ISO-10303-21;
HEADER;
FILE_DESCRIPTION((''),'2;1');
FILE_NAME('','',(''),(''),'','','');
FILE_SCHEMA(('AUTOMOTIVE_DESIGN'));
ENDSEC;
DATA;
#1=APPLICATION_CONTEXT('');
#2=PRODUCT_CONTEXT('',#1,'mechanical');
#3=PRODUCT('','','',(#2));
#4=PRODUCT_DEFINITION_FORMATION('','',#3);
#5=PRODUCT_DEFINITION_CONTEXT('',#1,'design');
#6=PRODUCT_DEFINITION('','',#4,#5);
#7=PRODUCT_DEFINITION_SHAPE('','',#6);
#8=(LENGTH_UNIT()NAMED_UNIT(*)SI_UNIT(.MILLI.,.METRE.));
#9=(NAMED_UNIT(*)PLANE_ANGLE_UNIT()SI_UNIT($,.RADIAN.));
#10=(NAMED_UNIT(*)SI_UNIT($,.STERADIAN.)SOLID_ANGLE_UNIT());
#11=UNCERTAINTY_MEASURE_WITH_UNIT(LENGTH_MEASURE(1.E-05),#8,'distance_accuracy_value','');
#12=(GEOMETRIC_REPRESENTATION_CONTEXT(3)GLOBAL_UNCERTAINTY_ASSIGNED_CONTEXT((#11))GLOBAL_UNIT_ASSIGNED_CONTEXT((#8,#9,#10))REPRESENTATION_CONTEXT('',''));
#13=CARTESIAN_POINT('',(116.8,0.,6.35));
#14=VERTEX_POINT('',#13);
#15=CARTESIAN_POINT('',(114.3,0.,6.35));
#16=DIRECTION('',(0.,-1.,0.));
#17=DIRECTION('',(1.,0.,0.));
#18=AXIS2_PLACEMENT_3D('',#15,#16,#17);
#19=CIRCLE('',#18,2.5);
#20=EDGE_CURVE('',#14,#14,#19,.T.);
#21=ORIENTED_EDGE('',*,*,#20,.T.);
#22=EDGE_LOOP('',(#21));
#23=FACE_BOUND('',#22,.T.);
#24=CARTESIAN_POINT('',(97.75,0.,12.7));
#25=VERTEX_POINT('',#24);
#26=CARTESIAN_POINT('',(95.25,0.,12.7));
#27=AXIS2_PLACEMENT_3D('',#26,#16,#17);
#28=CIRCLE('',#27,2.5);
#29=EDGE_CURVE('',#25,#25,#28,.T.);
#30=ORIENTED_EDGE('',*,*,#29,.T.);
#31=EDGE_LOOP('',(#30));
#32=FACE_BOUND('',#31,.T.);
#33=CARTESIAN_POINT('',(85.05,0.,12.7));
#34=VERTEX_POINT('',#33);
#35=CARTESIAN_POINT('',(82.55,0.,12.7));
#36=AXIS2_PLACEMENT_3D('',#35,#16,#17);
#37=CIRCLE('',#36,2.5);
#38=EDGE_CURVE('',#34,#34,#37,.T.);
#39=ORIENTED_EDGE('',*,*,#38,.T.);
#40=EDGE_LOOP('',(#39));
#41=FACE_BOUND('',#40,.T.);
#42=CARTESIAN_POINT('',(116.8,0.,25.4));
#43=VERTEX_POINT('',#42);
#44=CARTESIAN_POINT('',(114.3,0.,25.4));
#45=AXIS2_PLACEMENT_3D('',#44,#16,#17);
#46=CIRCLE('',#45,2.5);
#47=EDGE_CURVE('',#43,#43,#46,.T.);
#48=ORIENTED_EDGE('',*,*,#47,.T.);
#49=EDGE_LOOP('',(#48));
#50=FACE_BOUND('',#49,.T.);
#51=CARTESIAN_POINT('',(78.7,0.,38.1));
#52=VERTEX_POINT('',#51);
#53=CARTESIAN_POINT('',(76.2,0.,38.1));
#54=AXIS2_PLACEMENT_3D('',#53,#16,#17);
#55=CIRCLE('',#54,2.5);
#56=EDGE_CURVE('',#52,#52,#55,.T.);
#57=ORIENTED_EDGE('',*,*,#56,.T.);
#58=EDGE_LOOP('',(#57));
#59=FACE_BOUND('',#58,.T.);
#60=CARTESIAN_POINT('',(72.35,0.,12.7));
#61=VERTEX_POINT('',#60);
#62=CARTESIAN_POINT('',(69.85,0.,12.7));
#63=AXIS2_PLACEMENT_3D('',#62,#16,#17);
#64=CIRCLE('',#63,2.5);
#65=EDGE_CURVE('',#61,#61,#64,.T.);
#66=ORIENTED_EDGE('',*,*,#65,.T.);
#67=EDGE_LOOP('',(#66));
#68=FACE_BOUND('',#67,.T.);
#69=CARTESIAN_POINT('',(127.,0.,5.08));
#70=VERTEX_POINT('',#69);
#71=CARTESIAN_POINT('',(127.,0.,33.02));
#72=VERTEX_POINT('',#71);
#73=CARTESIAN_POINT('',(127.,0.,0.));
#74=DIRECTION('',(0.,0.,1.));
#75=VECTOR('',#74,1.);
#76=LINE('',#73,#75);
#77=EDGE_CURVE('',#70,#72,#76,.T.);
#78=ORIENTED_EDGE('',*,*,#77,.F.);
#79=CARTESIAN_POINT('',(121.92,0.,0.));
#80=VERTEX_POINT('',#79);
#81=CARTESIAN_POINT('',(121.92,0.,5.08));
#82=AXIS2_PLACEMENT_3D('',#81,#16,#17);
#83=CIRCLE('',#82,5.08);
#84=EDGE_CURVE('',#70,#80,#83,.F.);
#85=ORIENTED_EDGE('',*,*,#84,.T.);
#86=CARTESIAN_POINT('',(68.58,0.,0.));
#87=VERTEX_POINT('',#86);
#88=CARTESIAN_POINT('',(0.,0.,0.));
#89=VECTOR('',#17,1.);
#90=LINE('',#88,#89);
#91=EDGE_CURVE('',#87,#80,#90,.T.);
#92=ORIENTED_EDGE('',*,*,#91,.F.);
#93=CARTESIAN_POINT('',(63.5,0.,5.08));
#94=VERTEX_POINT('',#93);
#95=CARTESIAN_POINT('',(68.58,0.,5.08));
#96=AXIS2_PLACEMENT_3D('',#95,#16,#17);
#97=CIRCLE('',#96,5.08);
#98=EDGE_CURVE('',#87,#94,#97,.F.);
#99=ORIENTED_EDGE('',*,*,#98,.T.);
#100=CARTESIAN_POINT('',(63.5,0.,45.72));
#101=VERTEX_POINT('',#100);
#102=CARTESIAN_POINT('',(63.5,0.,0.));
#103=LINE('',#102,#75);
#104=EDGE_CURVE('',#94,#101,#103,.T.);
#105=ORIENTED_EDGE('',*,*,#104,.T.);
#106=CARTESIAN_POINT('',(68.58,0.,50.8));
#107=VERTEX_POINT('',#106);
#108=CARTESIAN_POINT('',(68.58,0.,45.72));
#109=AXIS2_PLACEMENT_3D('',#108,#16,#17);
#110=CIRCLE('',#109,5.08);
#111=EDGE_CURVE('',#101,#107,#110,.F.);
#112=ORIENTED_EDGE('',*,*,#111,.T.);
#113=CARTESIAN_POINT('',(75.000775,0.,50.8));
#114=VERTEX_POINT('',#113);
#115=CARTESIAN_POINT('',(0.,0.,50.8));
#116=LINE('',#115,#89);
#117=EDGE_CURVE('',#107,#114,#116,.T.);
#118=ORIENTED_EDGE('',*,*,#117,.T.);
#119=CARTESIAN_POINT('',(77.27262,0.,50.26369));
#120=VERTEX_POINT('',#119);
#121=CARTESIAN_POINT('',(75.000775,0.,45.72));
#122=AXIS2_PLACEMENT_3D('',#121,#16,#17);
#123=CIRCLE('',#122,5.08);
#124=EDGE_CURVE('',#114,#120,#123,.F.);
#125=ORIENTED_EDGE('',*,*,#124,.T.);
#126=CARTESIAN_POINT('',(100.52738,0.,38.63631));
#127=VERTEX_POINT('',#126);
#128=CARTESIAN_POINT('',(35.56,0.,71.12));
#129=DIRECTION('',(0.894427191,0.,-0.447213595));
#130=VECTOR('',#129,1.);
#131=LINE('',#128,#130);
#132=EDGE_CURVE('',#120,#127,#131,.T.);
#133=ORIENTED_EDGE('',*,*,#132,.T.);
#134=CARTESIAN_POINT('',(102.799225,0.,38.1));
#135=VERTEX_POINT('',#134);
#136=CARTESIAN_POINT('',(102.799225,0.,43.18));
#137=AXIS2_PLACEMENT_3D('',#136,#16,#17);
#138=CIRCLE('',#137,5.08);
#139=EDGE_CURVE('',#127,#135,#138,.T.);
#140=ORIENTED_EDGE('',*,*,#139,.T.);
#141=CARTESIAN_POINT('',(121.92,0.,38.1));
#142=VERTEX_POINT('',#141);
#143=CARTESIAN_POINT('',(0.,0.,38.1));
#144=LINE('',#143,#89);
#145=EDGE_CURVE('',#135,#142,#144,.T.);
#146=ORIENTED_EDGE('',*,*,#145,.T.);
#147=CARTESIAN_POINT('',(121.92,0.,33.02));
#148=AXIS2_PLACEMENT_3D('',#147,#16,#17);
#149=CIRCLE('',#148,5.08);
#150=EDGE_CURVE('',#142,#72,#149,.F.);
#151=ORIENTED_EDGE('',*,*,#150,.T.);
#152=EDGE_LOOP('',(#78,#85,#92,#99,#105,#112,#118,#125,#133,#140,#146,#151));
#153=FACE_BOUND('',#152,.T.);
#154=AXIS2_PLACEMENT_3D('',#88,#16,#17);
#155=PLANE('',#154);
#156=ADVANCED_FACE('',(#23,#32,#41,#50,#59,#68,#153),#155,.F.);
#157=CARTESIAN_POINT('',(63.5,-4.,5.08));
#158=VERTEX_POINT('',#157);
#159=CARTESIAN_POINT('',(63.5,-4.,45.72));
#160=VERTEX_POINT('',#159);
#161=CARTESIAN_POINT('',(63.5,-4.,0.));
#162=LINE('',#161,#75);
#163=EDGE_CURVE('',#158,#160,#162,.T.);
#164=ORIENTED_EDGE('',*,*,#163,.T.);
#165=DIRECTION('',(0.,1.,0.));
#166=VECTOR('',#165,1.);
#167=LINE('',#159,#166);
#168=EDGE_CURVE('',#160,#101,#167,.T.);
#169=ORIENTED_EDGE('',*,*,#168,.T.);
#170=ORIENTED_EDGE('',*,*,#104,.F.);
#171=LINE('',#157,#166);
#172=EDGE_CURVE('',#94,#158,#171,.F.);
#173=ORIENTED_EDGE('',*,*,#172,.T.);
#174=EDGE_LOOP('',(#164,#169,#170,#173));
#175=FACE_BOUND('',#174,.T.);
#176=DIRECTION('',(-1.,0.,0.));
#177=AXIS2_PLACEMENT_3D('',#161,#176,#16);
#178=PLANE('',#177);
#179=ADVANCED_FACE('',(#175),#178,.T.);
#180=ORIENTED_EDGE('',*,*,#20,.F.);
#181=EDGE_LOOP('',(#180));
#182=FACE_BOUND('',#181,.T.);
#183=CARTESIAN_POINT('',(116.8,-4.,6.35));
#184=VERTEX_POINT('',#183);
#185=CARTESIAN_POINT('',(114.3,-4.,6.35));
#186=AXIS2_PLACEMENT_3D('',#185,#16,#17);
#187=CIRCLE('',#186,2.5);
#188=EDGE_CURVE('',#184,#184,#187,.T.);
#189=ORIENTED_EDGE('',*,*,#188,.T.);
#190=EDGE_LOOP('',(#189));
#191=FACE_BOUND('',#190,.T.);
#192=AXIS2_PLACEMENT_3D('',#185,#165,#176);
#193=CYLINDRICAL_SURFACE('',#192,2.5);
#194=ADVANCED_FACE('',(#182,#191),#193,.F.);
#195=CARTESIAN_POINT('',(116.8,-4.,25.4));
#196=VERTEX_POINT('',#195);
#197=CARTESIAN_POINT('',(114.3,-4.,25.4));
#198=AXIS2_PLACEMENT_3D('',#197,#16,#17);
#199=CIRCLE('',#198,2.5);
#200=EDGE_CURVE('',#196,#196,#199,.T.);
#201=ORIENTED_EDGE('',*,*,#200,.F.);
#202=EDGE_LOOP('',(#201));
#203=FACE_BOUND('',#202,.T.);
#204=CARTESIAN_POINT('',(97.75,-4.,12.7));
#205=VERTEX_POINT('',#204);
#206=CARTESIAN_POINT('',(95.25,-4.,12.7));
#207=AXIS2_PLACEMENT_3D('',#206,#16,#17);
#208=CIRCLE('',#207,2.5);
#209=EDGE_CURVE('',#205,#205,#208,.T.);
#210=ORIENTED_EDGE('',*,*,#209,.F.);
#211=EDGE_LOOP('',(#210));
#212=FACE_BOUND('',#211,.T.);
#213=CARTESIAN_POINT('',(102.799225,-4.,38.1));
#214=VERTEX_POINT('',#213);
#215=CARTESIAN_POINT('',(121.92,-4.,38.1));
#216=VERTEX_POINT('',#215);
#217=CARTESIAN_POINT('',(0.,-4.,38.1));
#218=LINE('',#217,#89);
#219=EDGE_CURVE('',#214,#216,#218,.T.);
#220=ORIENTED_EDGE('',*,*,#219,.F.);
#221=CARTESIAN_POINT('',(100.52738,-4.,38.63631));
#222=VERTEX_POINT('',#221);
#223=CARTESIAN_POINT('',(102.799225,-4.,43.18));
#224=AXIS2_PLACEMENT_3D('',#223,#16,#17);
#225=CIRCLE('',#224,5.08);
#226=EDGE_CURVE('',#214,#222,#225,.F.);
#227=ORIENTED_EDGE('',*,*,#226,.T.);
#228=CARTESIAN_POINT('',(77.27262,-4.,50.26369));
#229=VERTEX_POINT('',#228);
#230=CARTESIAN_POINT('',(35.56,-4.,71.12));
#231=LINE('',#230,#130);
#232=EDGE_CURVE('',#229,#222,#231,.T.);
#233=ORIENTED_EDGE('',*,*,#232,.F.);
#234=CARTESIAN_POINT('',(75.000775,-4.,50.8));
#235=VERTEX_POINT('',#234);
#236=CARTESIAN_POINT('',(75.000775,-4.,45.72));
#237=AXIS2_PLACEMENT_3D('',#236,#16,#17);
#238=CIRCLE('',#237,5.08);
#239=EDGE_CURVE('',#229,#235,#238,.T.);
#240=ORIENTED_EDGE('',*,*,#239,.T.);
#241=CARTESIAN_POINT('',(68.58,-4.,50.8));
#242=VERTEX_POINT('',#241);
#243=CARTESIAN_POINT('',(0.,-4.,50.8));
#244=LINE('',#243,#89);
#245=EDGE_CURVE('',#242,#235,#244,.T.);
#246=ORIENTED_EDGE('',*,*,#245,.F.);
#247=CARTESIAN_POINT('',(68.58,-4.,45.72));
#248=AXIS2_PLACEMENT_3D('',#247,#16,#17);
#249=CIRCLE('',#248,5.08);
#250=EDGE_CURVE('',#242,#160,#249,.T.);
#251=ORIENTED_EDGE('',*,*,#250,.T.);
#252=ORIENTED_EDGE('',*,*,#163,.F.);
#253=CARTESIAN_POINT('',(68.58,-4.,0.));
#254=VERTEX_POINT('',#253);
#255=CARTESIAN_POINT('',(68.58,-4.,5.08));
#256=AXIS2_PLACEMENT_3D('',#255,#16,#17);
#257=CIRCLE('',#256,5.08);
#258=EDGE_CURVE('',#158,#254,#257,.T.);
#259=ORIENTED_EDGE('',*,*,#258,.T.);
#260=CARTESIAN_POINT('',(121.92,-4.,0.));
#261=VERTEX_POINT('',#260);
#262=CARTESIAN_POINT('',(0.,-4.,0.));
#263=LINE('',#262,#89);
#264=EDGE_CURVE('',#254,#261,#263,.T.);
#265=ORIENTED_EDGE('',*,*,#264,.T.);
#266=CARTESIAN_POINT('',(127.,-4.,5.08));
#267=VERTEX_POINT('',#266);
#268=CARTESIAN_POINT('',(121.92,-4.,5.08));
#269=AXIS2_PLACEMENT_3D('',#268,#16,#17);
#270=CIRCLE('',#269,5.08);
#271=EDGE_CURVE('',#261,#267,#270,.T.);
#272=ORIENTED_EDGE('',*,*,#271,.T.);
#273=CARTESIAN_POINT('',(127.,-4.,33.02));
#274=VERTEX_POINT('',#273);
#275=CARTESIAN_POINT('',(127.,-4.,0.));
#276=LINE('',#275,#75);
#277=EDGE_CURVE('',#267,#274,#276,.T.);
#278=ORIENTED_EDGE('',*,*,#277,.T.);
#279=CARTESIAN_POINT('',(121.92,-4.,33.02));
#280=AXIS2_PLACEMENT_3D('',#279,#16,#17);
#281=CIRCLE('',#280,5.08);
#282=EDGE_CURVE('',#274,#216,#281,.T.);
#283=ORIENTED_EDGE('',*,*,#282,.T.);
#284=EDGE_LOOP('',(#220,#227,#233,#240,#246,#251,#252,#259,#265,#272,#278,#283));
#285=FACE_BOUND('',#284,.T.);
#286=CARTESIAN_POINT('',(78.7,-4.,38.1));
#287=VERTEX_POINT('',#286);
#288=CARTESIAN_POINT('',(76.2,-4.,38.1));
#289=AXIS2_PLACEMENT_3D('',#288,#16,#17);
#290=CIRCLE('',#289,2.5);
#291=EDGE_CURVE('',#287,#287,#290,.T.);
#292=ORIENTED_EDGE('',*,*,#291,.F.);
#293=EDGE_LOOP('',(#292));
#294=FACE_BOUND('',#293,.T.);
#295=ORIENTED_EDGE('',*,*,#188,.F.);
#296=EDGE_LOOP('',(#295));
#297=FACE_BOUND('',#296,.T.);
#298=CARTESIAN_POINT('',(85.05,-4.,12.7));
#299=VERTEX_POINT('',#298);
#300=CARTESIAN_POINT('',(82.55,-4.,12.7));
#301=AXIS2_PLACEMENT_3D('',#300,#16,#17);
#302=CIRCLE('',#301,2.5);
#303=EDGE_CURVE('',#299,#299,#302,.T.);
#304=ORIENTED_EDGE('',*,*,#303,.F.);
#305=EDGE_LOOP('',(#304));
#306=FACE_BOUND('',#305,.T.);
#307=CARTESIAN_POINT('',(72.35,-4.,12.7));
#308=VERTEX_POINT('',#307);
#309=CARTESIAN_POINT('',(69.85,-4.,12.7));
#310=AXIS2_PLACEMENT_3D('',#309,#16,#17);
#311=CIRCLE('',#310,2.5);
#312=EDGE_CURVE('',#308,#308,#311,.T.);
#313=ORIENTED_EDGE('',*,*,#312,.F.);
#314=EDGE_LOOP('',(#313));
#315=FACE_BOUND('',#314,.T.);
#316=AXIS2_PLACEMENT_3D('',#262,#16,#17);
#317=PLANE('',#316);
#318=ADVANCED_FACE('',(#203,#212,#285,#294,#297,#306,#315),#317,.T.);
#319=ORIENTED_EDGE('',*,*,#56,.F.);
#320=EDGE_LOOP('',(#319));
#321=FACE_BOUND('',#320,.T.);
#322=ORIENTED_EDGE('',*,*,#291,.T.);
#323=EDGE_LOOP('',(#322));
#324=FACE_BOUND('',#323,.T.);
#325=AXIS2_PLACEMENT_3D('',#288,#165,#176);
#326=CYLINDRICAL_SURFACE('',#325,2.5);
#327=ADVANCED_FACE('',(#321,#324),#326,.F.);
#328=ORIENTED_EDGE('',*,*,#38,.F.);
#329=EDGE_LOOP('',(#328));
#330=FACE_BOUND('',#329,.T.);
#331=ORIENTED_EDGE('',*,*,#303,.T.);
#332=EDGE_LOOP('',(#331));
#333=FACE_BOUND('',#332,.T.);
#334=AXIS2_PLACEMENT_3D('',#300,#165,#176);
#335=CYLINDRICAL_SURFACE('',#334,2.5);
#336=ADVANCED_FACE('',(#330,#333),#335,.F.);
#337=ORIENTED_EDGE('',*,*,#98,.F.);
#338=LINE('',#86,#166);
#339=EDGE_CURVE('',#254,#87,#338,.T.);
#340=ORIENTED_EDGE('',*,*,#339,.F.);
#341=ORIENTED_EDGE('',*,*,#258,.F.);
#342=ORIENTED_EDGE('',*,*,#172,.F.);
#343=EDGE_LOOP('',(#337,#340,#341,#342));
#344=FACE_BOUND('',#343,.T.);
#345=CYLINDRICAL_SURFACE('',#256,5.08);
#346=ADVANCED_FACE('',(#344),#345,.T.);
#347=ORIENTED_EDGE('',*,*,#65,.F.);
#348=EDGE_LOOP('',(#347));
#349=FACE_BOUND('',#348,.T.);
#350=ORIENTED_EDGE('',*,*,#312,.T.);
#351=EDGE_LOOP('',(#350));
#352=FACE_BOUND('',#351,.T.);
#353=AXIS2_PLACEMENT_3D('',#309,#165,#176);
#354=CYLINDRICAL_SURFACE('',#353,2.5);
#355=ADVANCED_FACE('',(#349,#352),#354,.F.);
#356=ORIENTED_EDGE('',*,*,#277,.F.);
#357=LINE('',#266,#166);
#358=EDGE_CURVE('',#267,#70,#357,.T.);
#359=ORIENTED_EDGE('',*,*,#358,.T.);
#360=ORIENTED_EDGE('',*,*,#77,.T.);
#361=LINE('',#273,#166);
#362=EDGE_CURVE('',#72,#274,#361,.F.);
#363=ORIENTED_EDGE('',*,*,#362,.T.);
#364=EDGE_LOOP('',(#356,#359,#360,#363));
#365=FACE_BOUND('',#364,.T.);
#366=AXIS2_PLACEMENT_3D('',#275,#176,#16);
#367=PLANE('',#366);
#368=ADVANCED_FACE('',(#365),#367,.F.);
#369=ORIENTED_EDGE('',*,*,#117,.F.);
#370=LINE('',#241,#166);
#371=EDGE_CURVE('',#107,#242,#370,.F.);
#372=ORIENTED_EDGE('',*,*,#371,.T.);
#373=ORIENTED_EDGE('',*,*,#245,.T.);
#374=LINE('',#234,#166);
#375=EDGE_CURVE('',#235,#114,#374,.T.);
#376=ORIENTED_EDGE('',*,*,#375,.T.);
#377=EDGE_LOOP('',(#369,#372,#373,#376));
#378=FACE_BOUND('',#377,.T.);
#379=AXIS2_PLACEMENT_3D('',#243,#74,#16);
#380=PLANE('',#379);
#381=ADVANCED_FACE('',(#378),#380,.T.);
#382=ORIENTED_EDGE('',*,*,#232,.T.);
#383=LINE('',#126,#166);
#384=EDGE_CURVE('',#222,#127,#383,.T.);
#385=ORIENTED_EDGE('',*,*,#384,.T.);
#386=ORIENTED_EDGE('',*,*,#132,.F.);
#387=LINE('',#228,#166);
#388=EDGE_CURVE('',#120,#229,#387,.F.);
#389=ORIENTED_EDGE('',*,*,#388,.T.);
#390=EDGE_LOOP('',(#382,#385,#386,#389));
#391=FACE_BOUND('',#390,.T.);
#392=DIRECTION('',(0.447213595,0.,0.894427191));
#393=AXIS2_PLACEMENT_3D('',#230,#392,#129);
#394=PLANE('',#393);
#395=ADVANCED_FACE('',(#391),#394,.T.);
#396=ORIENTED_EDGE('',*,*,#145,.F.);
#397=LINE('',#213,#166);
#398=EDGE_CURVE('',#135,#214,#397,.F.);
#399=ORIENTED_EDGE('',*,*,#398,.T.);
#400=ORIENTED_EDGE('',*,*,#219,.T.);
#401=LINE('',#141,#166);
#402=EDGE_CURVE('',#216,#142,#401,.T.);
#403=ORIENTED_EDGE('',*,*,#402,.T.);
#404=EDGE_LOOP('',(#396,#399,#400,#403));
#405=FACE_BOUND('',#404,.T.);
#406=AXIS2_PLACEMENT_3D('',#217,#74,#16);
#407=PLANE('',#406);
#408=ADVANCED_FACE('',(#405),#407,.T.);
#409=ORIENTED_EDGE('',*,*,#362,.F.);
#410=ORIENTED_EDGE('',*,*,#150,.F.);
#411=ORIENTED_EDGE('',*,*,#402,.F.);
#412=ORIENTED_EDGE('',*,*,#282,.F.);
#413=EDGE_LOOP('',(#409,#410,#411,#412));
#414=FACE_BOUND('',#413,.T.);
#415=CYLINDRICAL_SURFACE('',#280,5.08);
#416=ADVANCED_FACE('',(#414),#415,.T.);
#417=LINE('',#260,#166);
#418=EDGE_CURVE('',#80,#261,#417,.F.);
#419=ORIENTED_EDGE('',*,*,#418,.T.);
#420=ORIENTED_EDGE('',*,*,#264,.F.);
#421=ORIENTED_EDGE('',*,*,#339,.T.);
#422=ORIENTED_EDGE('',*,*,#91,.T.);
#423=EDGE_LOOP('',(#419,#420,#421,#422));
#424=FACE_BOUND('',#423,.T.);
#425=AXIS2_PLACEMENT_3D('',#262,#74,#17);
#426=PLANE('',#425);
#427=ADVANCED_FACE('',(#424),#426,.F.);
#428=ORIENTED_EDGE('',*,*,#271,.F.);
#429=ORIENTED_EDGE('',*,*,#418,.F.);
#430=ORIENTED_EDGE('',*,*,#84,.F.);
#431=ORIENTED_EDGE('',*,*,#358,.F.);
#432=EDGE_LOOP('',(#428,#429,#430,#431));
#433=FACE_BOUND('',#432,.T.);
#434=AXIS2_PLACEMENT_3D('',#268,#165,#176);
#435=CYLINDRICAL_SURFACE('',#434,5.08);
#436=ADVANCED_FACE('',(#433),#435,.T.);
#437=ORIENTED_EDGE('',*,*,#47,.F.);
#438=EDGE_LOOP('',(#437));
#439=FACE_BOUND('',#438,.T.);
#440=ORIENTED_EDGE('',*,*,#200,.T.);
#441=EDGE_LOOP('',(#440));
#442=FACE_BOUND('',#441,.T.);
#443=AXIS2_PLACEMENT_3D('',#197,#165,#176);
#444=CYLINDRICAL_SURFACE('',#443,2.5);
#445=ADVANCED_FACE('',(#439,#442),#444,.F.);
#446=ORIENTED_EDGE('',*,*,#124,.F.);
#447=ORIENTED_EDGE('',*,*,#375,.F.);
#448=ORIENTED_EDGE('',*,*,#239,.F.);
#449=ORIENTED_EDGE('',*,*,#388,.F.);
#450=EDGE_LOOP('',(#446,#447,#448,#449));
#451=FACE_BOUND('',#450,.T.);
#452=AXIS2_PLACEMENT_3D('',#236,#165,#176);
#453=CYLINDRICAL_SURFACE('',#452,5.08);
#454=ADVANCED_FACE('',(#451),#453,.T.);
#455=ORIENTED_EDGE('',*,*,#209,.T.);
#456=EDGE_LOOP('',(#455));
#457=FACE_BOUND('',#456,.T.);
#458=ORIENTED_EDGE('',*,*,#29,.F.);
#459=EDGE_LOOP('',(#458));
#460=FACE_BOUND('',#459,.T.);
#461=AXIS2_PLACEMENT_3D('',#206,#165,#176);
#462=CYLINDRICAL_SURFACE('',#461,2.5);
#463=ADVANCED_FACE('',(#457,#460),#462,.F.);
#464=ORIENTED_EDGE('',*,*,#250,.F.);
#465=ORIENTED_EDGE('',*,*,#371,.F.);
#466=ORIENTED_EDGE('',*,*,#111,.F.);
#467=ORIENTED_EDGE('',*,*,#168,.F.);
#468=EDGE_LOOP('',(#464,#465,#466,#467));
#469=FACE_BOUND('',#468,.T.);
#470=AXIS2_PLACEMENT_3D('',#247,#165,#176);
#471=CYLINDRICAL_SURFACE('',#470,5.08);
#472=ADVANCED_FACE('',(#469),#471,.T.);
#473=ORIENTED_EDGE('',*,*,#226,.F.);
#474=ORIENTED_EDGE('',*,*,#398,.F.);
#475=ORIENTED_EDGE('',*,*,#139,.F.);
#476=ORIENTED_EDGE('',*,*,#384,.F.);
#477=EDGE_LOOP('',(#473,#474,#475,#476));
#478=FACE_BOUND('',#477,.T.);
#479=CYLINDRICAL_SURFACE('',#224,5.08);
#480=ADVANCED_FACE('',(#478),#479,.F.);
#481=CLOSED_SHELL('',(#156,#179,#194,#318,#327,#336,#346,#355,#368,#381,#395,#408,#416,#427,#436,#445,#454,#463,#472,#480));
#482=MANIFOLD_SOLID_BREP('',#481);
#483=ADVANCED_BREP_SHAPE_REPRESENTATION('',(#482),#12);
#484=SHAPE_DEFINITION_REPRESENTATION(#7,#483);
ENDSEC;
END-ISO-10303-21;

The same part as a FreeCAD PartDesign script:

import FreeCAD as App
import Part
import Sketcher

V = App.Vector
Q = App.Units.Quantity


def edges_at(feature, points):
    """Names of the edges that pass closest to the given points."""
    edges = feature.Shape.Edges
    near = lambda p: min(range(len(edges)), key=lambda i: edges[i].distToShape(Part.Vertex(*p))[0])
    return sorted({f"Edge{near(p) + 1}" for p in points})


def add_polygon(sketch, points):
    """Adds a closed chain of lines whose ends are joined by coincident constraints."""
    first, n = sketch.GeometryCount, len(points)
    for a, b in zip(points, points[1:] + points[:1]):
        sketch.addGeometry(Part.LineSegment(App.Vector(*a, 0), App.Vector(*b, 0)), False)
    for i in range(n):
        sketch.addConstraint(Sketcher.Constraint("Coincident", first + i, 2, first + (i + 1) % n, 1))

doc = App.newDocument("Part")
body = doc.addObject("PartDesign::Body", "Body")

# Sketch on XZ plane
sketch1 = doc.addObject("Sketcher::SketchObject", "Sketch")
body.addObject(sketch1)
sketch1.AttachmentSupport = (doc.XZ_Plane, [""])
sketch1.MapMode = "FlatFace"
add_polygon(sketch1, [(127, 38.1), (101.6, 38.1), (76.2, 50.8), (63.5, 50.8), (63.5, 0), (127, 0)])  # lines 0-5
sketch1.addGeometry(Part.Circle(V(69.8, 12.7, 0), V(0, 0, 1), 2.5), False)  # 6
sketch1.addGeometry(Part.Circle(V(82.5, 12.7, 0), V(0, 0, 1), 2.5), False)  # 7
sketch1.addGeometry(Part.Circle(V(95.2, 12.7, 0), V(0, 0, 1), 2.5), False)  # 8
sketch1.addGeometry(Part.Circle(V(114.3, 6.3, 0), V(0, 0, 1), 2.5), False)  # 9
sketch1.addGeometry(Part.Circle(V(76.2, 38.1, 0), V(0, 0, 1), 2.5), False)  # 10
sketch1.addGeometry(Part.Circle(V(114.3, 25.4, 0), V(0, 0, 1), 2.5), False)  # 11
sketch1.addConstraint([
    Sketcher.Constraint("Horizontal", 0),
    Sketcher.Constraint("Horizontal", 2),
    Sketcher.Constraint("Vertical", 3),
    Sketcher.Constraint("Horizontal", 4),
    Sketcher.Constraint("Vertical", 5),
    Sketcher.Constraint("Equal", 6, 7),
    Sketcher.Constraint("Equal", 7, 8),
    Sketcher.Constraint("Equal", 8, 9),
    Sketcher.Constraint("Equal", 9, 10),
    Sketcher.Constraint("Equal", 10, 11),
    Sketcher.Constraint("PointOnObject", 3, 2, -1),
    Sketcher.Constraint("Horizontal", 6, 3, 7, 3),
    Sketcher.Constraint("Horizontal", 7, 3, 8, 3),
    Sketcher.Constraint("Horizontal", 10, 3, 0, 2),
    Sketcher.Constraint("Vertical", 9, 3, 11, 3),
    Sketcher.Constraint("Vertical", 10, 3, 1, 2),
    Sketcher.Constraint("DistanceX", 0, 2, 0, 1, Q("1 in")),
    Sketcher.Constraint("DistanceY", 3, 2, 3, 1, Q("2 in")),
    Sketcher.Constraint("DistanceX", 2, 2, 2, 1, Q("0.5 in")),
    Sketcher.Constraint("DistanceX", 4, 1, 4, 2, Q("2.5 in")),
    Sketcher.Constraint("DistanceY", 5, 1, 5, 2, Q("1.5 in")),
    Sketcher.Constraint("DistanceX", -1, 1, 10, 3, Q("3 in")),
    Sketcher.Constraint("DistanceY", -1, 1, 11, 3, Q("1 in")),
    Sketcher.Constraint("DistanceX", 6, 3, 8, 3, Q("1 in")),
    Sketcher.Constraint("DistanceY", 7, 3, 10, 3, Q("1 in")),
    Sketcher.Constraint("DistanceX", -1, 1, 9, 3, Q("4.5 in")),
    Sketcher.Constraint("DistanceX", 6, 3, 7, 3, Q("0.5 in")),
    Sketcher.Constraint("Diameter", 6, 5.0),
    Sketcher.Constraint("DistanceX", -1, 1, 6, 3, Q("2.75 in")),
    Sketcher.Constraint("DistanceY", -1, 1, 9, 3, Q("0.25 in")),
])
pad1 = doc.addObject("PartDesign::Pad", "Pad")
body.addObject(pad1)
pad1.Profile = sketch1
pad1.Length = 4
doc.recompute()

fillet = doc.addObject("PartDesign::Fillet", "Fillet")
body.addObject(fillet)
fillet.Base = (pad1, edges_at(pad1, [
    (63.5, -2, 50.8),
    (76.2, -2, 50.8),
    (101.6, -2, 38.1),
    (127, -2, 38.1),
    (127, -2, 0),
    (63.5, -2, 0),
]))
fillet.Radius = Q("0.2 in")

doc.recompute()
